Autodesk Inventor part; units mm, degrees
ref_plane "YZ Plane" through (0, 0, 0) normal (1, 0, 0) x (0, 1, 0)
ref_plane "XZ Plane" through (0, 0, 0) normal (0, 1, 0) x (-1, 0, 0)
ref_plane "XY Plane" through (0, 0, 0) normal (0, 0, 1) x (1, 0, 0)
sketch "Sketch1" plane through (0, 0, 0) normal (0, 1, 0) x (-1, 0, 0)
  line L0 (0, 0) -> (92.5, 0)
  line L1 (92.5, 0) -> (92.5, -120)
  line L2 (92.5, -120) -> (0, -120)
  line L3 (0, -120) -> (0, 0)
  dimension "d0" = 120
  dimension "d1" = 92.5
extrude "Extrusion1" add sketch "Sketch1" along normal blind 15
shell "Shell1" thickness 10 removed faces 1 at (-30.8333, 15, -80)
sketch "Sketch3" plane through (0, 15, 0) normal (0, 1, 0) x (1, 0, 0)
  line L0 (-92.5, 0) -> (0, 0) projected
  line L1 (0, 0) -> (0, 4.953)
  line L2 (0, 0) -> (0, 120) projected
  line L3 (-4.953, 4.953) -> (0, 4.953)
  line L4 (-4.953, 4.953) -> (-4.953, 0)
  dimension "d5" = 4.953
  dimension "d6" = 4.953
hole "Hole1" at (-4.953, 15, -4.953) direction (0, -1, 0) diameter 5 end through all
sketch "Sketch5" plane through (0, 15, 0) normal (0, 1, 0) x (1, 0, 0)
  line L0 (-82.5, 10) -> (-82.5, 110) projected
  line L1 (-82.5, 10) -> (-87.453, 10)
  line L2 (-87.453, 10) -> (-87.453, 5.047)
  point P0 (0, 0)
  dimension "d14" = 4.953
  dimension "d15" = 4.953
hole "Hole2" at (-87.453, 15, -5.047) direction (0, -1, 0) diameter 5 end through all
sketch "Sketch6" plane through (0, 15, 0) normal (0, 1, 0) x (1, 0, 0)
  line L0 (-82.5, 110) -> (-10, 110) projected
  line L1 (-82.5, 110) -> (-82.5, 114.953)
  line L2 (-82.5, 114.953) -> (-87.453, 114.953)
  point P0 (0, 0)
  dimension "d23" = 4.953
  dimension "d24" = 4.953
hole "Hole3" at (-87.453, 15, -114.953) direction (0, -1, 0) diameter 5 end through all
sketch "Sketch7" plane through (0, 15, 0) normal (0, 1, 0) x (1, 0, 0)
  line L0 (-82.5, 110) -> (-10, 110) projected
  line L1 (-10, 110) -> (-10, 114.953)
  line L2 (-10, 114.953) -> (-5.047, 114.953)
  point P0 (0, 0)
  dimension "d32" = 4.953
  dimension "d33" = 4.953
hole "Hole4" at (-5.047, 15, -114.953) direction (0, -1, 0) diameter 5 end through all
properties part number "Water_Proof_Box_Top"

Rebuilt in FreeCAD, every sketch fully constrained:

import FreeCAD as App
import Part
import Sketcher
Q = App.Units.Quantity


def faces_at(feature, points):
    """Names of the faces that lie closest to the given points."""
    faces = feature.Shape.Faces
    near = lambda p: min(range(len(faces)), key=lambda i: faces[i].distToShape(Part.Vertex(*p))[0])
    return sorted({f"Face{near(p) + 1}" for p in points})

doc = App.newDocument("Part")
params = doc.addObject("Spreadsheet::Sheet", "Params")
for row, (alias, value) in enumerate([
    ("sketch1_height", "120 mm"),
    ("sketch1_width", "92.5 mm"),
    ("pad1_length", "15 mm"),
    ("thickness_wall", "10 mm"),
    ("sketch2_diameter", "5 mm"),
    ("hole_diameter", "5 mm"),
    ("sketch3_diameter", "5 mm"),
    ("hole2_diameter", "5 mm"),
    ("sketch4_diameter", "5 mm"),
    ("hole3_diameter", "5 mm"),
    ("sketch5_diameter", "5 mm"),
    ("hole4_diameter", "5 mm"),
], start=1):
    params.set(f"A{row}", alias)
    params.set(f"B{row}", "=" + value)
    params.setAlias(f"B{row}", alias)

body = doc.addObject("PartDesign::Body", "Body")

sketch1 = body.newObject("Sketcher::SketchObject", "Sketch")
sketch1.AttachmentSupport = (doc.getObject("XZ_Plane"), [""])
sketch1.MapMode = "FlatFace"
sketch1.addGeometry(Part.LineSegment(App.Vector(-92.5, 0, 0), App.Vector(0, 0, 0)), False)
sketch1.addGeometry(Part.LineSegment(App.Vector(0, 0, 0), App.Vector(0, -120, 0)), False)
sketch1.addGeometry(Part.LineSegment(App.Vector(0, -120, 0), App.Vector(-92.5, -120, 0)), False)
sketch1.addGeometry(Part.LineSegment(App.Vector(-92.5, -120, 0), App.Vector(-92.5, 0, 0)), False)
sketch1.addConstraint(Sketcher.Constraint("Coincident", 0, 2, 1, 1))
sketch1.addConstraint(Sketcher.Constraint("Coincident", 1, 2, 2, 1))
sketch1.addConstraint(Sketcher.Constraint("Coincident", 2, 2, 3, 1))
sketch1.addConstraint(Sketcher.Constraint("Coincident", 3, 2, 0, 1))
sketch1.addConstraint(Sketcher.Constraint("Horizontal", 0))
sketch1.addConstraint(Sketcher.Constraint("Vertical", 1))
sketch1.addConstraint(Sketcher.Constraint("Horizontal", 2))
sketch1.addConstraint(Sketcher.Constraint("Vertical", 3))
sketch1.addConstraint(Sketcher.Constraint("Coincident", 0, 2, -1, 1))
sketch1.addConstraint(Sketcher.Constraint("DistanceY", 1, 2, 1, 1, Q("120 mm")))
sketch1.addConstraint(Sketcher.Constraint("DistanceX", 0, 1, 0, 2, Q("92.5 mm")))
sketch1.setExpression("Constraints[9]", "Params.sketch1_height")
sketch1.setExpression("Constraints[10]", "Params.sketch1_width")
pad1 = body.newObject("PartDesign::Pad", "Pad")
pad1.Profile = sketch1
pad1.setExpression("Length", "Params.pad1_length")
pad1.Reversed = True
doc.recompute()

thickness = body.newObject("PartDesign::Thickness", "Thickness")
thickness.Base = (pad1, faces_at(pad1, [(-30.833, 15, -80)]))
thickness.setExpression("Value", "Params.thickness_wall")
thickness.Reversed = True
thickness.Join = "Intersection"

sketch2 = body.newObject("Sketcher::SketchObject", "Sketch001")
sketch2.AttachmentSupport = (doc.getObject("XZ_Plane"), [""])
sketch2.MapMode = "FlatFace"
sketch2.AttachmentOffset = App.Placement(App.Vector(0, 0, -15), App.Rotation())
sketch2.addGeometry(Part.Circle(App.Vector(-4.953, -4.953, 0), App.Vector(0, 0, 1), 2.5), False)
sketch2.addConstraint(Sketcher.Constraint("Diameter", 0, Q("5 mm")))
sketch2.addConstraint(Sketcher.Constraint("DistanceX", 0, 3, -1, 1, Q("4.953 mm")))
sketch2.addConstraint(Sketcher.Constraint("DistanceY", 0, 3, -1, 1, Q("4.953 mm")))
sketch2.setExpression("Constraints[0]", "Params.sketch2_diameter")
doc.recompute()
hole = body.newObject("PartDesign::Hole", "Hole")
hole.Profile = sketch2
hole.ThreadType = "None"
hole.setExpression("Diameter", "Params.hole_diameter")
hole.DepthType = "ThroughAll"
hole.Reversed = True

sketch3 = body.newObject("Sketcher::SketchObject", "Sketch002")
sketch3.AttachmentSupport = (doc.getObject("XZ_Plane"), [""])
sketch3.MapMode = "FlatFace"
sketch3.AttachmentOffset = App.Placement(App.Vector(0, 0, -15), App.Rotation())
sketch3.addGeometry(Part.Circle(App.Vector(-87.453, -5.047, 0), App.Vector(0, 0, 1), 2.5), False)
sketch3.addConstraint(Sketcher.Constraint("Diameter", 0, Q("5 mm")))
sketch3.addConstraint(Sketcher.Constraint("DistanceX", 0, 3, -1, 1, Q("87.453 mm")))
sketch3.addConstraint(Sketcher.Constraint("DistanceY", 0, 3, -1, 1, Q("5.047 mm")))
sketch3.setExpression("Constraints[0]", "Params.sketch3_diameter")
doc.recompute()
hole2 = body.newObject("PartDesign::Hole", "Hole001")
hole2.Profile = sketch3
hole2.ThreadType = "None"
hole2.setExpression("Diameter", "Params.hole2_diameter")
hole2.DepthType = "ThroughAll"
hole2.Reversed = True

sketch4 = body.newObject("Sketcher::SketchObject", "Sketch003")
sketch4.AttachmentSupport = (doc.getObject("XZ_Plane"), [""])
sketch4.MapMode = "FlatFace"
sketch4.AttachmentOffset = App.Placement(App.Vector(0, 0, -15), App.Rotation())
sketch4.addGeometry(Part.Circle(App.Vector(-87.453, -114.953, 0), App.Vector(0, 0, 1), 2.5), False)
sketch4.addConstraint(Sketcher.Constraint("Diameter", 0, Q("5 mm")))
sketch4.addConstraint(Sketcher.Constraint("DistanceX", 0, 3, -1, 1, Q("87.453 mm")))
sketch4.addConstraint(Sketcher.Constraint("DistanceY", 0, 3, -1, 1, Q("114.953 mm")))
sketch4.setExpression("Constraints[0]", "Params.sketch4_diameter")
doc.recompute()
hole3 = body.newObject("PartDesign::Hole", "Hole002")
hole3.Profile = sketch4
hole3.ThreadType = "None"
hole3.setExpression("Diameter", "Params.hole3_diameter")
hole3.DepthType = "ThroughAll"
hole3.Reversed = True

sketch5 = body.newObject("Sketcher::SketchObject", "Sketch004")
sketch5.AttachmentSupport = (doc.getObject("XZ_Plane"), [""])
sketch5.MapMode = "FlatFace"
sketch5.AttachmentOffset = App.Placement(App.Vector(0, 0, -15), App.Rotation())
sketch5.addGeometry(Part.Circle(App.Vector(-5.047, -114.953, 0), App.Vector(0, 0, 1), 2.5), False)
sketch5.addConstraint(Sketcher.Constraint("Diameter", 0, Q("5 mm")))
sketch5.addConstraint(Sketcher.Constraint("DistanceX", 0, 3, -1, 1, Q("5.047 mm")))
sketch5.addConstraint(Sketcher.Constraint("DistanceY", 0, 3, -1, 1, Q("114.953 mm")))
sketch5.setExpression("Constraints[0]", "Params.sketch5_diameter")
doc.recompute()
hole4 = body.newObject("PartDesign::Hole", "Hole003")
hole4.Profile = sketch5
hole4.ThreadType = "None"
hole4.setExpression("Diameter", "Params.hole4_diameter")
hole4.DepthType = "ThroughAll"
hole4.Reversed = True

doc.recompute()
